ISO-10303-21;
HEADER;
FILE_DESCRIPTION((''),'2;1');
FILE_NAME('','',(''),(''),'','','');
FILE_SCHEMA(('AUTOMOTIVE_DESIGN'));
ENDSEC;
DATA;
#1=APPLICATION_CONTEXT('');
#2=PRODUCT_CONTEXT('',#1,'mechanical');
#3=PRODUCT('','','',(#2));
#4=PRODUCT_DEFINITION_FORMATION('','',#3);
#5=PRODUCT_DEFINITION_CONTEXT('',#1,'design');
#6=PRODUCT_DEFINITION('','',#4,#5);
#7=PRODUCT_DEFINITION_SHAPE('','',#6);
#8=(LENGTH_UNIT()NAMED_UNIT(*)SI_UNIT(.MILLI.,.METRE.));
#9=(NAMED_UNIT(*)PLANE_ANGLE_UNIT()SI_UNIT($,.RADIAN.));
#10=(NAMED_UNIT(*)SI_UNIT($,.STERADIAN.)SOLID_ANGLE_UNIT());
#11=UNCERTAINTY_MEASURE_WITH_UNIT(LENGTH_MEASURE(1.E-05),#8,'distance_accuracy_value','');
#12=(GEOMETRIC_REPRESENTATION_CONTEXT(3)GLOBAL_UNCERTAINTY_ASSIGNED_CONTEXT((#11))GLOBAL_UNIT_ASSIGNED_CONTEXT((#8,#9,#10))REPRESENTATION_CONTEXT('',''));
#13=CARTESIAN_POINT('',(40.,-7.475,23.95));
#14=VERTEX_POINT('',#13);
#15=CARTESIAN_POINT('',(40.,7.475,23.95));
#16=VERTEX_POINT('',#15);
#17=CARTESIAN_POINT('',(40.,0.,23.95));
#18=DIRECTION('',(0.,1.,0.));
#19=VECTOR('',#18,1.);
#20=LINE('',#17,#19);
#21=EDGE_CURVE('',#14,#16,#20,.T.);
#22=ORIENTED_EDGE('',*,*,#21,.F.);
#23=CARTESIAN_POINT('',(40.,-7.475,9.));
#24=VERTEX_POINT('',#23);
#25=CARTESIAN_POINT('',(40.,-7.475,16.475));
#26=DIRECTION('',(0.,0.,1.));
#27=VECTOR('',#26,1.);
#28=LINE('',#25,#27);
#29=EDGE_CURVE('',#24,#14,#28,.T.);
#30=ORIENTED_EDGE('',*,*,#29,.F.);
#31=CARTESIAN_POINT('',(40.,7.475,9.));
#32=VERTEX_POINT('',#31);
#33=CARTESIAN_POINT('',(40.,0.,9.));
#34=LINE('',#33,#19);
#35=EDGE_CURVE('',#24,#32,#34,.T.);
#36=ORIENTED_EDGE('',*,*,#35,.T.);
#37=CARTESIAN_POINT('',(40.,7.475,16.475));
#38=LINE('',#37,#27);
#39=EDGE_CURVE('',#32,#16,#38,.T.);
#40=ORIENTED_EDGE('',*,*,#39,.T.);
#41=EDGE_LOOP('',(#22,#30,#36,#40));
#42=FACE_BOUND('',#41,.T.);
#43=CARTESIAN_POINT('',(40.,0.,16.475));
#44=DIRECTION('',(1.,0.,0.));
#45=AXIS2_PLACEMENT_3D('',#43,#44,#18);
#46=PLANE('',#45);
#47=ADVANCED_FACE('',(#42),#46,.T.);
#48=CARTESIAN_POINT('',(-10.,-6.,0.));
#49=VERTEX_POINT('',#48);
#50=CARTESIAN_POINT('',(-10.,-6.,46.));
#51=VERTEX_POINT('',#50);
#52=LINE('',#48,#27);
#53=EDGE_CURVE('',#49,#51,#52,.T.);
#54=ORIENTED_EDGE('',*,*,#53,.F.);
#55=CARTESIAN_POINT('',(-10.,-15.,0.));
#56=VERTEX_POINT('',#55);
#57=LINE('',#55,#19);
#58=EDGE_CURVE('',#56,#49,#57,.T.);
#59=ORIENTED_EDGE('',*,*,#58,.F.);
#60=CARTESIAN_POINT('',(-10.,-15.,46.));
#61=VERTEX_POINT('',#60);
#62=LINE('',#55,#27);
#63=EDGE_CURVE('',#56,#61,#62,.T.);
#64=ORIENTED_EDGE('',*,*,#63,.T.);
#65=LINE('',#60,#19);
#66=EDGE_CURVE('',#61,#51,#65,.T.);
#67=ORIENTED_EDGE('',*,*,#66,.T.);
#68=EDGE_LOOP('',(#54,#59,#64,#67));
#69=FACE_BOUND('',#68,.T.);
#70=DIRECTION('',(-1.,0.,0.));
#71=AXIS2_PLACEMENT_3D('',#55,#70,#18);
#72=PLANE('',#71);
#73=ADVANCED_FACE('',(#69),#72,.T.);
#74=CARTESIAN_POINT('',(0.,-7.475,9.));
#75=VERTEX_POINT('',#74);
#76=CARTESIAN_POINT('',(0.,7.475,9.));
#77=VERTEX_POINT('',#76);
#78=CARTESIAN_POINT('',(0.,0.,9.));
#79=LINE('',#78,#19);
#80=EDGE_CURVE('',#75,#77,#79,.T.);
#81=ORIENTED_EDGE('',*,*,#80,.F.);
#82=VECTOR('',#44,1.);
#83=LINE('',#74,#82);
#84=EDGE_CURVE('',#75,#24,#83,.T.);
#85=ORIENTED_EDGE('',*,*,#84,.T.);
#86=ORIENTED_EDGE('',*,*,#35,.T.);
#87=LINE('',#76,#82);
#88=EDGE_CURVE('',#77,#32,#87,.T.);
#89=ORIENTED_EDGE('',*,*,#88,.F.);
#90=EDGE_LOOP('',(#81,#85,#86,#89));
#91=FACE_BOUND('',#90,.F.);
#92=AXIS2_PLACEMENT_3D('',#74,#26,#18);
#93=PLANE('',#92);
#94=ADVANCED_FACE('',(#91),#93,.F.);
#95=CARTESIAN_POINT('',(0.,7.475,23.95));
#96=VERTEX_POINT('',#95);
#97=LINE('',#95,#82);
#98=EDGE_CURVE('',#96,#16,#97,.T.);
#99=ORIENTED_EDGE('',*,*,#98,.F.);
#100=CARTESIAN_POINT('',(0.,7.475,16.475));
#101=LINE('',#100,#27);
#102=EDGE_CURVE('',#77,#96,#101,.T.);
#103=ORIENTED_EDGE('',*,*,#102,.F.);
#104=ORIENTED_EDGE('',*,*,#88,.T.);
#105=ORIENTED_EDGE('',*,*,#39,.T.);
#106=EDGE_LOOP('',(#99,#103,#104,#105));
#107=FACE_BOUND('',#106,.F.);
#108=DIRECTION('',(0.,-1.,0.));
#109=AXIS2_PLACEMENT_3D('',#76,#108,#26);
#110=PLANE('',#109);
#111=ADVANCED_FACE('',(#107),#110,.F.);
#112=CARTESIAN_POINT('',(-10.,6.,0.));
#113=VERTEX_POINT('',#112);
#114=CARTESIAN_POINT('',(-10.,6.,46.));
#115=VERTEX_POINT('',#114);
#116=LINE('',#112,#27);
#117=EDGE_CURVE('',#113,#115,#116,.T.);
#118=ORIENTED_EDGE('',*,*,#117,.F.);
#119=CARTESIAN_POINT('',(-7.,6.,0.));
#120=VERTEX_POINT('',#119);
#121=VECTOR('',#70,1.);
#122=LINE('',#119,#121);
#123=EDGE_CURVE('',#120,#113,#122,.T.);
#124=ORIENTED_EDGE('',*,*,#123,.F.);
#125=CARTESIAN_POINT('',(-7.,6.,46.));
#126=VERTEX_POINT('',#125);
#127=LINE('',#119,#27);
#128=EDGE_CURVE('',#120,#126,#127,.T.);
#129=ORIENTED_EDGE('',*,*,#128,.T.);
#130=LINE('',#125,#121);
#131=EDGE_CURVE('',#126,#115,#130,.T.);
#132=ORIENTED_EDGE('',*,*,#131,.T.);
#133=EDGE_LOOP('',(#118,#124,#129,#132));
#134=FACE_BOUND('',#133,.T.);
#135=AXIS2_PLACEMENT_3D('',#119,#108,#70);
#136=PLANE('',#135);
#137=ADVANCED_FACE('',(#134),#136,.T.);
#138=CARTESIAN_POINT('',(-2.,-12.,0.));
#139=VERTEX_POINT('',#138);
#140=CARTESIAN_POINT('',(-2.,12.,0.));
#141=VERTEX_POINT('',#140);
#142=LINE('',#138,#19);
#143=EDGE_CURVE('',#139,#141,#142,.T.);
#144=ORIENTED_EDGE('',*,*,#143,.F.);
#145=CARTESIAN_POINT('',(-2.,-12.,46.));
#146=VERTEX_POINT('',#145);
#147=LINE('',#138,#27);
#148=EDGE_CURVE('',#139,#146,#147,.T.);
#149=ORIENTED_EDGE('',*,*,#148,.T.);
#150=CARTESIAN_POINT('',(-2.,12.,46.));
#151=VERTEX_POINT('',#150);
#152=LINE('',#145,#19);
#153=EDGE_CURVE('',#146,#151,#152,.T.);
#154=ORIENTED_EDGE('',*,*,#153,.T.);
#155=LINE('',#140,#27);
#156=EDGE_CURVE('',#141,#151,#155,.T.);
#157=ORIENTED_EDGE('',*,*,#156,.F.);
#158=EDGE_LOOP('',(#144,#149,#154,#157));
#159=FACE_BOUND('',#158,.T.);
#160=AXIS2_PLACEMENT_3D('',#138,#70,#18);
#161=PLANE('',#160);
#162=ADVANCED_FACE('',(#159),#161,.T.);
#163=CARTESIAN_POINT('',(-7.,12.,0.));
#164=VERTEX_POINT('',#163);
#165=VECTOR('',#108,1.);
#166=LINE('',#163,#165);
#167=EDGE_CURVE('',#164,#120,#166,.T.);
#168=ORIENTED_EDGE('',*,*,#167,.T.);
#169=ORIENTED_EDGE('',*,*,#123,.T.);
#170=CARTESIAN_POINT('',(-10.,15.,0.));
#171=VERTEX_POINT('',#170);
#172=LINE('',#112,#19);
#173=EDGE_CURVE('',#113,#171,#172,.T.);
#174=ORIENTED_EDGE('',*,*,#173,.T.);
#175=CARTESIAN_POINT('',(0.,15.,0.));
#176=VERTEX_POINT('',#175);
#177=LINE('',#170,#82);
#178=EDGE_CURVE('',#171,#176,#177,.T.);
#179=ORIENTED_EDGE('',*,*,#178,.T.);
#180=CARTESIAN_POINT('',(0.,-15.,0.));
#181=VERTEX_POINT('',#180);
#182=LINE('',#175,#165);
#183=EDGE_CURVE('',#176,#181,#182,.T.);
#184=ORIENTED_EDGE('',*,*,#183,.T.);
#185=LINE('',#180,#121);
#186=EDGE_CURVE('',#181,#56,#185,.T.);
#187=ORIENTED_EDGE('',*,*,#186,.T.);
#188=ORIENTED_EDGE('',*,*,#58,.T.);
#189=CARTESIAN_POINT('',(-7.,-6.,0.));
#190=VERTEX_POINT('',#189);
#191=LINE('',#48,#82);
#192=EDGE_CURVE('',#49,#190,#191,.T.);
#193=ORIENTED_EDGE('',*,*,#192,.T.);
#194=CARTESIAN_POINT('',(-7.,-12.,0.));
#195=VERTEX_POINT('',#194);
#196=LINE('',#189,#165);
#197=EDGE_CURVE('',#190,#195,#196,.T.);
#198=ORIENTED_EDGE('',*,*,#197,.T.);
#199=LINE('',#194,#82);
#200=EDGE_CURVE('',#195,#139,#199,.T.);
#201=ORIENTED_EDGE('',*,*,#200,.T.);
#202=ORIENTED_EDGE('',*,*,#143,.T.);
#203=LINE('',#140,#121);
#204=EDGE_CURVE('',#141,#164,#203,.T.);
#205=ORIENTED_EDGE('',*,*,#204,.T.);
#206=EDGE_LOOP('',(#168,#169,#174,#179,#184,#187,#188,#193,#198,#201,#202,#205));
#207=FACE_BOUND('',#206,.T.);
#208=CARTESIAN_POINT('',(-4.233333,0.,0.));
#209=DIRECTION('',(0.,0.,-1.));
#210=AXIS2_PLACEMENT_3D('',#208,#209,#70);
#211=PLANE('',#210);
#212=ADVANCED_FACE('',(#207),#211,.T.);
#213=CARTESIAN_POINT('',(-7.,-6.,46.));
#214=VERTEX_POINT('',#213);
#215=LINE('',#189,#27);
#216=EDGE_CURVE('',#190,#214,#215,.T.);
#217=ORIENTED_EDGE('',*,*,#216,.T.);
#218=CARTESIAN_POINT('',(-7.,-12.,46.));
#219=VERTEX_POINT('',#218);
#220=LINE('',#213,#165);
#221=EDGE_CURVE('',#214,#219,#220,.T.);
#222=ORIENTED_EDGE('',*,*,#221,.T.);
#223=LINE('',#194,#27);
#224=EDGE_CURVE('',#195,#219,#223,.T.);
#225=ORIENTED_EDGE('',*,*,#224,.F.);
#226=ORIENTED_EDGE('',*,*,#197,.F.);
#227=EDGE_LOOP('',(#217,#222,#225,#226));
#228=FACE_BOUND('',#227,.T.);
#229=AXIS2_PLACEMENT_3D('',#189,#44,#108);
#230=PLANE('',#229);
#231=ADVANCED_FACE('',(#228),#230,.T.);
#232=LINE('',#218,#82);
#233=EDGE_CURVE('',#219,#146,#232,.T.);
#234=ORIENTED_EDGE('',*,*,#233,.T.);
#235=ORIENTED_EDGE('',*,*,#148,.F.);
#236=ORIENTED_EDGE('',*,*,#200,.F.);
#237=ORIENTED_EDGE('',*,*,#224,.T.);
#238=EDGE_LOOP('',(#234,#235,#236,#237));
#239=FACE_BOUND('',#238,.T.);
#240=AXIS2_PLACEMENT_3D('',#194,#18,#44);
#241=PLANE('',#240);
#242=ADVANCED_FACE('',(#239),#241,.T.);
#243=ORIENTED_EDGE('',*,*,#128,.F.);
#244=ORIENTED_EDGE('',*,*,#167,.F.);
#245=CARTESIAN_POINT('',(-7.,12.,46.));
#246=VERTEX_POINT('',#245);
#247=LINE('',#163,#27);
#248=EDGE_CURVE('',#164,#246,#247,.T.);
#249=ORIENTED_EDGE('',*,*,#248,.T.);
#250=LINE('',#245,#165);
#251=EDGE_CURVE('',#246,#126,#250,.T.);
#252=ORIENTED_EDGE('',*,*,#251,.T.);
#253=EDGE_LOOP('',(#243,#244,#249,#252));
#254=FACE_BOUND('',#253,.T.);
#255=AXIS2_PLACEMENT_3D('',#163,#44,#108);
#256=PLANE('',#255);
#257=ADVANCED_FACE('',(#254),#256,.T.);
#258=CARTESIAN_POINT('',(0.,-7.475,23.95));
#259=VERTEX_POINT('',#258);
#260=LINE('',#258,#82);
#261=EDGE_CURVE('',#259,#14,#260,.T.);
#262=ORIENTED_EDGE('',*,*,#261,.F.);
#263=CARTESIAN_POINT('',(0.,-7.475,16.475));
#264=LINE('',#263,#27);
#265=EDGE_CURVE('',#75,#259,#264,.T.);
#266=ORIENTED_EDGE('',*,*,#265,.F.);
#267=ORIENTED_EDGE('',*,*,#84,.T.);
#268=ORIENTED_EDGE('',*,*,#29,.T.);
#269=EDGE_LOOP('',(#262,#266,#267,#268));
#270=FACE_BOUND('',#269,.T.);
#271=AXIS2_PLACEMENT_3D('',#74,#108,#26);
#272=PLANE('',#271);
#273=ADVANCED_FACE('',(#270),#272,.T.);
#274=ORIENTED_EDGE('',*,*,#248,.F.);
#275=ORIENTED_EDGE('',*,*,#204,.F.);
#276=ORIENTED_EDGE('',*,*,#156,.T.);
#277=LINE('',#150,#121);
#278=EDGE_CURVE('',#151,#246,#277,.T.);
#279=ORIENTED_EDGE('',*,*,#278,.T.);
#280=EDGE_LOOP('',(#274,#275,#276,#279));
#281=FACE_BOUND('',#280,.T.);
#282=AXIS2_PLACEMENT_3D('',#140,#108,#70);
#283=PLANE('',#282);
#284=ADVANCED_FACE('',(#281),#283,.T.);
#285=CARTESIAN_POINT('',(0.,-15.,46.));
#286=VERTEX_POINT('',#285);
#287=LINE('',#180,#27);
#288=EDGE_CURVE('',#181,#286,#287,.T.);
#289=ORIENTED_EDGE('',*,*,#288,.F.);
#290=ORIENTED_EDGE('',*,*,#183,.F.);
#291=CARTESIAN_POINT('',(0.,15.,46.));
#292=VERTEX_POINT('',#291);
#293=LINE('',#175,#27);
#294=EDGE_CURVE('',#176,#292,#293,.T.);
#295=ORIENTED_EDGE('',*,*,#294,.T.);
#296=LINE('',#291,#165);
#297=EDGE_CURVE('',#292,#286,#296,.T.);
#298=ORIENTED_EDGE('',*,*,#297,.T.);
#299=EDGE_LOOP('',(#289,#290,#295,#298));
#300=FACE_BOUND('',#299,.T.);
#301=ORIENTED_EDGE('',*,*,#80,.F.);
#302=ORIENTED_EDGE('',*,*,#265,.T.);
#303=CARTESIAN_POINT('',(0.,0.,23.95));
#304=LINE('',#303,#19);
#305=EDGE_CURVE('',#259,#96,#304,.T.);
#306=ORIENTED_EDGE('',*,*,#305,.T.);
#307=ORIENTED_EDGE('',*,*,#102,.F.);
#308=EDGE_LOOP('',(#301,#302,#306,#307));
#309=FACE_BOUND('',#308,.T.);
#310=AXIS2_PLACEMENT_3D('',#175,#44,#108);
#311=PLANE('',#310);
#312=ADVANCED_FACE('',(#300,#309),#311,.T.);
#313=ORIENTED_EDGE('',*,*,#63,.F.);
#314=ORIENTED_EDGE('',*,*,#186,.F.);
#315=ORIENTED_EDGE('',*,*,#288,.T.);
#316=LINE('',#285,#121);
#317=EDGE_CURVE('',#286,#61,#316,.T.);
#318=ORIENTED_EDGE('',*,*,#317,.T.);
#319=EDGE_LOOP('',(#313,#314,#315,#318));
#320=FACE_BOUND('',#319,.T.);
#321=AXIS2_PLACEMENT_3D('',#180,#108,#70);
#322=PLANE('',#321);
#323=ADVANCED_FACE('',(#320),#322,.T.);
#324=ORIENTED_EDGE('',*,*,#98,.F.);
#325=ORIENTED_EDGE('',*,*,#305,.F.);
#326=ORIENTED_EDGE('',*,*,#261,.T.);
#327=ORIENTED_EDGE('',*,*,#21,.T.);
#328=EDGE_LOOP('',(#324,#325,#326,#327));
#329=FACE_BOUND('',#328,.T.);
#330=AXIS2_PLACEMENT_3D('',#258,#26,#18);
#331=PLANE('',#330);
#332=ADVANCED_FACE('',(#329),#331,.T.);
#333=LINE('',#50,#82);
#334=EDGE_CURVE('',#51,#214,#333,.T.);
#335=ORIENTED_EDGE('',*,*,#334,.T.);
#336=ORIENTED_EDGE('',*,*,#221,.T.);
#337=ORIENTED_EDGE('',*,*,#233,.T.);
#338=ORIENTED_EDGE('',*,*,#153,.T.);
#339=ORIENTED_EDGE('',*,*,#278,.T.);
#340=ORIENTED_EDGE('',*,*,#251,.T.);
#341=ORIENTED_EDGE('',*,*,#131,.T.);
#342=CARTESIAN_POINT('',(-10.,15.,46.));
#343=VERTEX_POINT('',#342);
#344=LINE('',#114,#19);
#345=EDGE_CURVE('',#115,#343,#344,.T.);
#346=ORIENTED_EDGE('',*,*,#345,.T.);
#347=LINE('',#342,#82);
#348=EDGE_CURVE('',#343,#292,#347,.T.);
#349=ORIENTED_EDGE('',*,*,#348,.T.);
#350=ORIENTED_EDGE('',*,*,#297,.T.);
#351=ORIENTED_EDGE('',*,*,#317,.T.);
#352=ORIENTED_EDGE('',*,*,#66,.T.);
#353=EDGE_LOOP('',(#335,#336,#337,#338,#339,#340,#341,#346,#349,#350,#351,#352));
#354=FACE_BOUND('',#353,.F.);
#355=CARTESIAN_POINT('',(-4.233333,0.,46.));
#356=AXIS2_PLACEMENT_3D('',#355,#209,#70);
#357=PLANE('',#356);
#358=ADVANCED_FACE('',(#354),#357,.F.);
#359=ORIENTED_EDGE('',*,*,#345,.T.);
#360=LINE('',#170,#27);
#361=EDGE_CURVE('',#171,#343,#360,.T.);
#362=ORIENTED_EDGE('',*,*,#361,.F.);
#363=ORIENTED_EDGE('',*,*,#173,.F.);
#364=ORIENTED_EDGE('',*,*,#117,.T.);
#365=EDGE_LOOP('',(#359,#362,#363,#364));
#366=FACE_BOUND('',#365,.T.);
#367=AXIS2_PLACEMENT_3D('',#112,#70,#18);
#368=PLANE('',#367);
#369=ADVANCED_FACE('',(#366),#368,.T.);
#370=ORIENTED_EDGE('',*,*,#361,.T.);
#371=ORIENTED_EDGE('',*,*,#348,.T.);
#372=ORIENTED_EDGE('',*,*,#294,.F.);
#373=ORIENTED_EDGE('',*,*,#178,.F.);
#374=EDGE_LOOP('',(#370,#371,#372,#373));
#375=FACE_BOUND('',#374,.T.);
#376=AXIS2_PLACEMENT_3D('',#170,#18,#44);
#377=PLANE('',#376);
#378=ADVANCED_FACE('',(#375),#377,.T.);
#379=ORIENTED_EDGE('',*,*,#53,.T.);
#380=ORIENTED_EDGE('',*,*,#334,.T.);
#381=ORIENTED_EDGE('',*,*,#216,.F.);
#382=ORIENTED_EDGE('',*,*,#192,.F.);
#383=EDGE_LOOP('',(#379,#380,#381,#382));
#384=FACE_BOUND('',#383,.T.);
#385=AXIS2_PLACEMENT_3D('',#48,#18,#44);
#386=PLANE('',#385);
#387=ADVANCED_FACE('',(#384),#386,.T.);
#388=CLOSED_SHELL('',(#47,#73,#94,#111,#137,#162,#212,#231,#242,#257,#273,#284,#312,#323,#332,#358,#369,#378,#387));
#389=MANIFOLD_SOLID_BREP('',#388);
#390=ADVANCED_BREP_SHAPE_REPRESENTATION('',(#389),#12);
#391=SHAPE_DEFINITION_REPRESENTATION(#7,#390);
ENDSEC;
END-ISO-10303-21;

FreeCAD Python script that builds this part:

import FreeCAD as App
import Part
import Sketcher
Q = App.Units.Quantity


def add_polygon(sketch, points):
    """Adds a closed chain of lines whose ends are joined by coincident constraints."""
    first, n = sketch.GeometryCount, len(points)
    for a, b in zip(points, points[1:] + points[:1]):
        sketch.addGeometry(Part.LineSegment(App.Vector(*a, 0), App.Vector(*b, 0)), False)
    for i in range(n):
        sketch.addConstraint(Sketcher.Constraint("Coincident", first + i, 2, first + (i + 1) % n, 1))

doc = App.newDocument("Part")
body = doc.addObject("PartDesign::Body", "Body")

# Sketch on XY plane
sketch1 = body.newObject("Sketcher::SketchObject", "Sketch")
sketch1.AttachmentSupport = (doc.getObject("XY_Plane"), [""])
sketch1.MapMode = "FlatFace"
add_polygon(sketch1, [(0, 15), (-10, 15), (-10, 6), (-7, 6), (-7, 12), (-2, 12), (-2, -12), (-7, -12), (-7, -6), (-10, -6), (-10, -15), (0, -15)])  # lines 0-11
sketch1.addConstraint(Sketcher.Constraint("Horizontal", 0))
sketch1.addConstraint(Sketcher.Constraint("Vertical", 1))
sketch1.addConstraint(Sketcher.Constraint("Horizontal", 2))
sketch1.addConstraint(Sketcher.Constraint("Vertical", 3))
sketch1.addConstraint(Sketcher.Constraint("Horizontal", 4))
sketch1.addConstraint(Sketcher.Constraint("Vertical", 5))
sketch1.addConstraint(Sketcher.Constraint("Horizontal", 6))
sketch1.addConstraint(Sketcher.Constraint("Vertical", 7))
sketch1.addConstraint(Sketcher.Constraint("Horizontal", 8))
sketch1.addConstraint(Sketcher.Constraint("Vertical", 9))
sketch1.addConstraint(Sketcher.Constraint("Horizontal", 10))
sketch1.addConstraint(Sketcher.Constraint("Vertical", 11))
sketch1.addConstraint(Sketcher.Constraint("Symmetric", 10, 2, 11, 2, -1, 1))
sketch1.addConstraint(Sketcher.Constraint("Symmetric", 3, 2, 6, 2, -1))
sketch1.addConstraint(Sketcher.Constraint("Symmetric", 1, 2, 8, 2, -1))
sketch1.addConstraint(Sketcher.Constraint("DistanceX", 0, 2, 0, 1, Q("10 mm")))
sketch1.addConstraint(Sketcher.Constraint("DistanceX", 2, 1, 2, 2, Q("3 mm")))
sketch1.addConstraint(Sketcher.Constraint("DistanceX", 4, 1, 4, 2, Q("5 mm")))
sketch1.addConstraint(Sketcher.Constraint("DistanceY", 1, 2, 1, 1, Q("9 mm")))
sketch1.addConstraint(Sketcher.Constraint("DistanceY", 3, 1, 3, 2, Q("6 mm")))
sketch1.addConstraint(Sketcher.Constraint("DistanceY", 5, 2, 5, 1, Q("24 mm")))
pad1 = body.newObject("PartDesign::Pad", "Pad")
pad1.Profile = sketch1
pad1.Length = 46

# Sketch on YZ plane
sketch2 = body.newObject("Sketcher::SketchObject", "Sketch001")
sketch2.AttachmentSupport = (doc.getObject("YZ_Plane"), [""])
sketch2.MapMode = "FlatFace"
add_polygon(sketch2, [(-7, 24), (-7, 9), (7, 9), (7, 24)])  # lines 0-3
sketch2.addConstraint(Sketcher.Constraint("Vertical", 0))
sketch2.addConstraint(Sketcher.Constraint("Horizontal", 1))
sketch2.addConstraint(Sketcher.Constraint("Vertical", 2))
sketch2.addConstraint(Sketcher.Constraint("Horizontal", 3))
sketch2.addConstraint(Sketcher.Constraint("Equal", 3, 0))
sketch2.addConstraint(Sketcher.Constraint("DistanceY", -1, 1, 0, 2, Q("9 mm")))
sketch2.addConstraint(Sketcher.Constraint("DistanceX", 1, 1, 1, 2, Q("14.95 mm")))
sketch2.addConstraint(Sketcher.Constraint("DistanceX", 0, 2, -1, 1, Q("7.475 mm")))
pad2 = body.newObject("PartDesign::Pad", "Pad001")
pad2.Profile = sketch2
pad2.Length = 40

doc.recompute()
